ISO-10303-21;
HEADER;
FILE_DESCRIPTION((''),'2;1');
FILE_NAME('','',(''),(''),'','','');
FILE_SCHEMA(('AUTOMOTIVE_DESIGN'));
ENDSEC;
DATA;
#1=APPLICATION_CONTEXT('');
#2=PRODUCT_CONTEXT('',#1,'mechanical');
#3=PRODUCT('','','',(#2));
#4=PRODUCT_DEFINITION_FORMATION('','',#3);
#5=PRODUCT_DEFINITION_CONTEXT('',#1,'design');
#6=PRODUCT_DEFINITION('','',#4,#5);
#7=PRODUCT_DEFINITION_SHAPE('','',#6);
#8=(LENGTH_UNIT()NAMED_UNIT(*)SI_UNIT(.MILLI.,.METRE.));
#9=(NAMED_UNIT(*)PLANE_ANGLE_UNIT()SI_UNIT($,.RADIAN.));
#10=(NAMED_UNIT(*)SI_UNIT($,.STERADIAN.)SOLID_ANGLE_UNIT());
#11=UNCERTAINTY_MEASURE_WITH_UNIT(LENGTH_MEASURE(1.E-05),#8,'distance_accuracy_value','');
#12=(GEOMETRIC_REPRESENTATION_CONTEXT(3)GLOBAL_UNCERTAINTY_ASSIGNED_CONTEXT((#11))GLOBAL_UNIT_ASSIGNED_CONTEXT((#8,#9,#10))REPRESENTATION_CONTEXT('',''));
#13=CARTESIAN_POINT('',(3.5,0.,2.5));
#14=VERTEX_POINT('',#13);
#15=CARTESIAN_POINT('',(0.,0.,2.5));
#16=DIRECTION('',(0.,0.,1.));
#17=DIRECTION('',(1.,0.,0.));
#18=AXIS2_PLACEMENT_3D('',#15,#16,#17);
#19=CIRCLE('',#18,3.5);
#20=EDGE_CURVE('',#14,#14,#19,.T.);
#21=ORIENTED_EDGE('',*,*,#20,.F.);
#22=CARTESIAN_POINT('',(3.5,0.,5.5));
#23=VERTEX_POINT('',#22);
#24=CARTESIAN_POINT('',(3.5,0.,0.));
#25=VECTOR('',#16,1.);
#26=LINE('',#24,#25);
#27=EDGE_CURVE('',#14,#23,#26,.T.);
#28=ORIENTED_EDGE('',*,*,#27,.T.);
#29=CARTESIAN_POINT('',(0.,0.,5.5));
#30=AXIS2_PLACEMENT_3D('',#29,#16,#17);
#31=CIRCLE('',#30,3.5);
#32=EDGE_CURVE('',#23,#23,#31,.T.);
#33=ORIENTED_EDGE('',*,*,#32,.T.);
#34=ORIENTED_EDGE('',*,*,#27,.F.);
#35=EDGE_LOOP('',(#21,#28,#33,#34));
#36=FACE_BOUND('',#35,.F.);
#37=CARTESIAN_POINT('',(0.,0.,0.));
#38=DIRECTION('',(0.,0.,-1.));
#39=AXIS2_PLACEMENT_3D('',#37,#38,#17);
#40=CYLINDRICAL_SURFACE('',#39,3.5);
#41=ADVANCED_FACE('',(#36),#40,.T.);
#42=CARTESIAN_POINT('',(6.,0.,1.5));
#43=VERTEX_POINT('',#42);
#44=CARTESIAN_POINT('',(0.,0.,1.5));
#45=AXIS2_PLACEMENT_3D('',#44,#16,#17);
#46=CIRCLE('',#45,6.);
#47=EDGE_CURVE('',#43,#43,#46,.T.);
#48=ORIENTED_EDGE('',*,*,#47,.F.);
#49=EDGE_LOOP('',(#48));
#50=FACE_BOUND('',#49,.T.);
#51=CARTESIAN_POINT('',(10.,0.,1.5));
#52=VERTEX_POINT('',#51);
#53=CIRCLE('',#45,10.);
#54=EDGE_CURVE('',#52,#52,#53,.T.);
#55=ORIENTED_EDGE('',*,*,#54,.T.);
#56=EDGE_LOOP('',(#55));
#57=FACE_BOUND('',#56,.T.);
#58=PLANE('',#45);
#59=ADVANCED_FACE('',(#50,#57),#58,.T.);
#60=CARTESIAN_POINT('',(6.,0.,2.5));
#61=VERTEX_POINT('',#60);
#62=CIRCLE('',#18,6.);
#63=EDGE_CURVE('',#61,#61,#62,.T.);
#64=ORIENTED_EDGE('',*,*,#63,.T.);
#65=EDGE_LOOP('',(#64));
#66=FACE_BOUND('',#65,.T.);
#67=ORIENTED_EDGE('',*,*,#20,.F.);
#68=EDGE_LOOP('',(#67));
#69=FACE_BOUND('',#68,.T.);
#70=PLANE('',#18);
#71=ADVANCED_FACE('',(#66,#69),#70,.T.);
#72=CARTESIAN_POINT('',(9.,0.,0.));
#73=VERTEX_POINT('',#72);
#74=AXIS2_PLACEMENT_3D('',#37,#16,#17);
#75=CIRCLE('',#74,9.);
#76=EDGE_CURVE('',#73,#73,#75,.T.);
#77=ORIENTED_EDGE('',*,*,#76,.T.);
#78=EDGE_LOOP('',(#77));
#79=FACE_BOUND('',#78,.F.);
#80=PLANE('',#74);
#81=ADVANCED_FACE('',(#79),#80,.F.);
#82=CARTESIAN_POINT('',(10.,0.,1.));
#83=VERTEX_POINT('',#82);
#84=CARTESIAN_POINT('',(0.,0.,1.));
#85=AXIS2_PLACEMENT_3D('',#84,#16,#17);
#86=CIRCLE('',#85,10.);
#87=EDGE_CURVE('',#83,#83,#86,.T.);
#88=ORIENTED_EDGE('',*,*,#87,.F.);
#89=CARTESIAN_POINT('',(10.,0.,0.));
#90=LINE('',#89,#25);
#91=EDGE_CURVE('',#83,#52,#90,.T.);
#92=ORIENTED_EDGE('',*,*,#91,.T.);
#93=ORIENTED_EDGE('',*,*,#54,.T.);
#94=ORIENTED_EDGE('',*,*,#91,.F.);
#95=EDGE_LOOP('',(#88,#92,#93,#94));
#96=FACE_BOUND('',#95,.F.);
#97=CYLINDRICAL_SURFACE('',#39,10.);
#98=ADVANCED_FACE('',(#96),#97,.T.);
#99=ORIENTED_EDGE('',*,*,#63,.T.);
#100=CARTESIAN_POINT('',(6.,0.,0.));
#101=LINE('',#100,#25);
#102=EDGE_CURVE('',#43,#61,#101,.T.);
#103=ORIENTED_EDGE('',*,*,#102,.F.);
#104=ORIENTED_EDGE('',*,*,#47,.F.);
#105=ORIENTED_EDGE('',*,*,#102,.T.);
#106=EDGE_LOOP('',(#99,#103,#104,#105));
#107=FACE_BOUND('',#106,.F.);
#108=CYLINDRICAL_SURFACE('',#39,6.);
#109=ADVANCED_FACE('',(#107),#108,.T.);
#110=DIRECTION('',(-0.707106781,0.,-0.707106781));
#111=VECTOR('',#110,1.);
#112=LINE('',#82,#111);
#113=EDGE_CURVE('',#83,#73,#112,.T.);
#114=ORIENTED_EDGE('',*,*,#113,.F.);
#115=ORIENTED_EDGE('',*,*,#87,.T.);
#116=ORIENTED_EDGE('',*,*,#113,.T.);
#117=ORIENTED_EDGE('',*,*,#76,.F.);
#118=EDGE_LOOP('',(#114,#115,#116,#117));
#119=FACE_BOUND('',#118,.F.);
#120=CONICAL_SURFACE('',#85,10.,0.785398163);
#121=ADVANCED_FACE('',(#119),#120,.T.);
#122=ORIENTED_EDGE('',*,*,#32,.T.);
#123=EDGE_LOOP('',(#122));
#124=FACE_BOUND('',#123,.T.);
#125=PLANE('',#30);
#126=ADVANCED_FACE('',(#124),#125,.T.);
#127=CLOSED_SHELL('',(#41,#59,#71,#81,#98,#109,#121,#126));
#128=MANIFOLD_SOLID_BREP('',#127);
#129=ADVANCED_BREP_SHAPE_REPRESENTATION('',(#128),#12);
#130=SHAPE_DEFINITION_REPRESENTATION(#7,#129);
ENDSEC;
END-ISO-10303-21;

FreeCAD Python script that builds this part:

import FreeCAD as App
import Part
import Sketcher

V = App.Vector
Q = App.Units.Quantity


def edges_at(feature, points):
    """Names of the edges that pass closest to the given points."""
    edges = feature.Shape.Edges
    near = lambda p: min(range(len(edges)), key=lambda i: edges[i].distToShape(Part.Vertex(*p))[0])
    return sorted({f"Edge{near(p) + 1}" for p in points})

doc = App.newDocument("Part")
body = doc.addObject("PartDesign::Body", "Body")

sketch1 = body.newObject("Sketcher::SketchObject", "Sketch")
sketch1.AttachmentSupport = (doc.getObject("XY_Plane"), [""])
sketch1.MapMode = "FlatFace"
sketch1.addGeometry(Part.Circle(V(0, 0, 0), V(0, 0, 1), 10), False)
sketch1.addGeometry(Part.Circle(V(0, 0, 0), V(0, 0, 1), 6), False)
sketch1.addConstraint(Sketcher.Constraint("Coincident", 0, 3, -1, 1))
sketch1.addConstraint(Sketcher.Constraint("Coincident", 1, 3, -1, 1))
sketch1.addConstraint(Sketcher.Constraint("Diameter", 0, Q("20 mm")))
sketch1.addConstraint(Sketcher.Constraint("Diameter", 1, Q("12 mm")))
pad1 = body.newObject("PartDesign::Pad", "Pad")
pad1.Profile = sketch1
pad1.Length = 1.5

sketch2 = body.newObject("Sketcher::SketchObject", "Sketch001")
sketch2.AttachmentSupport = (doc.getObject("XY_Plane"), [""])
sketch2.MapMode = "FlatFace"
sketch2.addGeometry(Part.Circle(V(0, 0, 0), V(0, 0, 1), 6), False)
sketch2.addGeometry(Part.Circle(V(0, 0, 0), V(0, 0, 1), 3.5), False)
sketch2.addConstraint(Sketcher.Constraint("Coincident", 0, 3, -1, 1))
sketch2.addConstraint(Sketcher.Constraint("Coincident", 1, 3, -1, 1))
sketch2.addConstraint(Sketcher.Constraint("Diameter", 0, Q("12 mm")))
sketch2.addConstraint(Sketcher.Constraint("Diameter", 1, Q("7 mm")))
pad2 = body.newObject("PartDesign::Pad", "Pad001")
pad2.Profile = sketch2
pad2.Length = 2.5

sketch3 = body.newObject("Sketcher::SketchObject", "Sketch002")
sketch3.AttachmentSupport = (doc.getObject("XY_Plane"), [""])
sketch3.MapMode = "FlatFace"
sketch3.addGeometry(Part.Circle(V(0, 0, 0), V(0, 0, 1), 3.5), False)
sketch3.addConstraint(Sketcher.Constraint("Coincident", 0, 3, -1, 1))
sketch3.addConstraint(Sketcher.Constraint("Diameter", 0, Q("7 mm")))
pad3 = body.newObject("PartDesign::Pad", "Pad002")
pad3.Profile = sketch3
pad3.Length = 5.5
doc.recompute()

chamfer = body.newObject("PartDesign::Chamfer", "Chamfer")
chamfer.Base = (pad3, edges_at(pad3, [(-10, 0, 0)]))
chamfer.Size = 1

doc.recompute()
